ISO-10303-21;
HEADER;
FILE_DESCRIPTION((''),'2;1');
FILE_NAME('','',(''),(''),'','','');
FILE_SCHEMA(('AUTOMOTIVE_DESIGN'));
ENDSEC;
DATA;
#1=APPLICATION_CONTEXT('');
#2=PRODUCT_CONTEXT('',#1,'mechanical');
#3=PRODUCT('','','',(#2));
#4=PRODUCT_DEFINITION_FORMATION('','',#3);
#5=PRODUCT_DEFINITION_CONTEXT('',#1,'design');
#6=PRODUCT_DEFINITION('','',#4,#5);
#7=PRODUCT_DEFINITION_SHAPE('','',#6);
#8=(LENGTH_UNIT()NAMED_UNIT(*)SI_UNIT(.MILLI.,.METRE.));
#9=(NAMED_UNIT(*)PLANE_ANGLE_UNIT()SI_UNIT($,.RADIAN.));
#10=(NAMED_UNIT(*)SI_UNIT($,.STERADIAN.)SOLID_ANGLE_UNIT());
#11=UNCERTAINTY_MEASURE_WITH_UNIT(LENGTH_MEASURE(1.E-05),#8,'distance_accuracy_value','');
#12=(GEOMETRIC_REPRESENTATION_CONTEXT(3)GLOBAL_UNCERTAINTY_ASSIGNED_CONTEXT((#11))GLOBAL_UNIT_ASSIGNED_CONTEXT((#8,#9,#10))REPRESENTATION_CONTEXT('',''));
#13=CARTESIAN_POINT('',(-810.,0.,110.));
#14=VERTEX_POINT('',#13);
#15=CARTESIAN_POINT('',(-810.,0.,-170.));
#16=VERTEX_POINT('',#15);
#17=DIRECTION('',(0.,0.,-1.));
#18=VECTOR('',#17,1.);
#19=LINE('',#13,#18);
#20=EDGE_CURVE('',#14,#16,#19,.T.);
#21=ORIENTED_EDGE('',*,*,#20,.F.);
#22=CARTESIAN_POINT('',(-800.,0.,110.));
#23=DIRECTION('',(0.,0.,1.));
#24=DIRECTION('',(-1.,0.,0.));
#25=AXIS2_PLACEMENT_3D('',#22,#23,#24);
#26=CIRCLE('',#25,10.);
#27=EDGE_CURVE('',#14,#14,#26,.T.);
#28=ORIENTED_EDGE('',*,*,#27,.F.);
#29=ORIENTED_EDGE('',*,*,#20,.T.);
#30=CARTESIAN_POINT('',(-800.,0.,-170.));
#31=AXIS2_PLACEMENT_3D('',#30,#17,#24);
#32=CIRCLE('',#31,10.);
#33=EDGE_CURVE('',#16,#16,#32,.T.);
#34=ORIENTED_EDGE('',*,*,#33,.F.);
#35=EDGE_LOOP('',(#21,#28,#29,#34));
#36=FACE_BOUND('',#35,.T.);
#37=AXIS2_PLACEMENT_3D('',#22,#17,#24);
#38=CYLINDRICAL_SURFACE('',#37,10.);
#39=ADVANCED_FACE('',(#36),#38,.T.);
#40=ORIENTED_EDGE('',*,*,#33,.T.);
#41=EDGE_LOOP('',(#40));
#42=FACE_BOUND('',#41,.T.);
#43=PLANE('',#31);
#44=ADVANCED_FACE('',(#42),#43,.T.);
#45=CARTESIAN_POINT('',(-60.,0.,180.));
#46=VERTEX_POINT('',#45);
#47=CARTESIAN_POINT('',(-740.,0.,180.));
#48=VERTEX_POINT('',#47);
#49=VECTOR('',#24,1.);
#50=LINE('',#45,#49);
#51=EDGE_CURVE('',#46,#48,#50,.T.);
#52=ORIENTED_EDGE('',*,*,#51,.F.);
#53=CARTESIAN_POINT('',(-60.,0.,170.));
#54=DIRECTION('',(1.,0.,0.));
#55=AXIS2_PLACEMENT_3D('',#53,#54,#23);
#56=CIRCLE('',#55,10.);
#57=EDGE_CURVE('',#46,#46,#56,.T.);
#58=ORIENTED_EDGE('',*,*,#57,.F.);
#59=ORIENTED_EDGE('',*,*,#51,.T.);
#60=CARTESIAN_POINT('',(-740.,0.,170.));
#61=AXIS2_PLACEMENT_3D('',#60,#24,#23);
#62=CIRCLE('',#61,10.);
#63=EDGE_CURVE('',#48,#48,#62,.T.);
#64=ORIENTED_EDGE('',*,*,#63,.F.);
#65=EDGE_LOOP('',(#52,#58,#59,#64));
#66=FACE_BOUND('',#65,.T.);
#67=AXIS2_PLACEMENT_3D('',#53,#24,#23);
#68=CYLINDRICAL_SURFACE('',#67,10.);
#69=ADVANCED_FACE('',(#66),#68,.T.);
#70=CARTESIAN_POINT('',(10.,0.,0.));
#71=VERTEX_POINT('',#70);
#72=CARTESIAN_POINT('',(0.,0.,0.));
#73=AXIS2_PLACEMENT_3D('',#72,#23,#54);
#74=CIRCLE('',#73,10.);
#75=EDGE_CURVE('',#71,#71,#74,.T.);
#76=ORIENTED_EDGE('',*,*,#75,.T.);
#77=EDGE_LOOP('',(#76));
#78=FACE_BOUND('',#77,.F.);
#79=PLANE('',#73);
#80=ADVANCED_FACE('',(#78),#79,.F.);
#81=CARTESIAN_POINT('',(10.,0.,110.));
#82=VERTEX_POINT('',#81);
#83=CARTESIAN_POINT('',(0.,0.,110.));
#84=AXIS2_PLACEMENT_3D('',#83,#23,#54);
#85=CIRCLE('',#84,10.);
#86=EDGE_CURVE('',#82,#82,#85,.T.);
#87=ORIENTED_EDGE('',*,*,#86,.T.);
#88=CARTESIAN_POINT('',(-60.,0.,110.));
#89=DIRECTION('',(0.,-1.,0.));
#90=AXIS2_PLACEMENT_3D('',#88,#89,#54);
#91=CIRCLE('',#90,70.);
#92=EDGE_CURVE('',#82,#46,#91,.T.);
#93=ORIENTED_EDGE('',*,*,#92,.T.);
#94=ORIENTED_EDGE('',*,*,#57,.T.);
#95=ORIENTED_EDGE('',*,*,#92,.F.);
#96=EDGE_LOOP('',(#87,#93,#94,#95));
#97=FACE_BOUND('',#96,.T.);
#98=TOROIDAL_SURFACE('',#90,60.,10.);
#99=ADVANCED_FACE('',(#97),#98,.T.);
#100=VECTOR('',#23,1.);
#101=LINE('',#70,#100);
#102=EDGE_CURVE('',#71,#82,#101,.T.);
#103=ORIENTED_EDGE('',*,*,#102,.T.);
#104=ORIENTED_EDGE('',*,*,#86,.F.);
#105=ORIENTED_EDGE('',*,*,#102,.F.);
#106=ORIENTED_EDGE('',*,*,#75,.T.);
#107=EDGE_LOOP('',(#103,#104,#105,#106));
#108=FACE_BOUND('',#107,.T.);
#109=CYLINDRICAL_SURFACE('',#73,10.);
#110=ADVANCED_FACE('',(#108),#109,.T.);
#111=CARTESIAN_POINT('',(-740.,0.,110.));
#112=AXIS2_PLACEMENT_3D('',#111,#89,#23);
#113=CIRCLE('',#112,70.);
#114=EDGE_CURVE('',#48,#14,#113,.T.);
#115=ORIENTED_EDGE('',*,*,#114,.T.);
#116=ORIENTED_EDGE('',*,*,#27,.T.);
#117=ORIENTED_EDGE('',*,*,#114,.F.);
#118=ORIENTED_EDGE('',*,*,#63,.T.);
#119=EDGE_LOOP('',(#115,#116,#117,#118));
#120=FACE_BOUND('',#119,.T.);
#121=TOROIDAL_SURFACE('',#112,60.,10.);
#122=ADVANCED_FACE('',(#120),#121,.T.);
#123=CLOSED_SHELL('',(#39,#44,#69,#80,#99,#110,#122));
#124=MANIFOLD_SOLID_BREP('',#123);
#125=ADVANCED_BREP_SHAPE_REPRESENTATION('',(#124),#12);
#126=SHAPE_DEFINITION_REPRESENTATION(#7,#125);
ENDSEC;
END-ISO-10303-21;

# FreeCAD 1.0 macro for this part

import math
import FreeCAD as App
import Part
import Sketcher
Q = App.Units.Quantity

doc = App.newDocument("Part")
body = doc.addObject("PartDesign::Body", "Body")

# Sketch on XY plane
sketch1 = doc.addObject("Sketcher::SketchObject", "Sketch")
body.addObject(sketch1)
sketch1.AttachmentSupport = (doc.XY_Plane, [""])
sketch1.MapMode = "FlatFace"
sketch1.addGeometry(Part.Circle(App.Vector(0, 0, 0), App.Vector(0, 0, 1), 10), False)
sketch1.addConstraint([
    Sketcher.Constraint("Coincident", 0, 3, -1, 1),
    Sketcher.Constraint("Diameter", 0, Q("20 mm")),
])

# Sketch on XZ plane
sketch2 = doc.addObject("Sketcher::SketchObject", "Sketch001")
body.addObject(sketch2)
sketch2.AttachmentSupport = (doc.XZ_Plane, [""])
sketch2.MapMode = "FlatFace"
sketch2.addGeometry([
    Part.LineSegment(App.Vector(0, 0, 0), App.Vector(0, 110, 0)),  # 0
    Part.ArcOfCircle(Part.Circle(App.Vector(-60, 110, 0), App.Vector(0, 0, 1), 60), math.radians(0), math.radians(90)),  # 1
    Part.LineSegment(App.Vector(-60, 170, 0), App.Vector(-740, 170, 0)),  # 2
    Part.ArcOfCircle(Part.Circle(App.Vector(-740, 110, 0), App.Vector(0, 0, 1), 60), math.radians(90), math.radians(180)),  # 3
    Part.LineSegment(App.Vector(-800, 110, 0), App.Vector(-800, -170, 0)),  # 4
], False)
sketch2.addConstraint([
    Sketcher.Constraint("Tangent", 0, 2, 1, 1),
    Sketcher.Constraint("Tangent", 1, 2, 2, 1),
    Sketcher.Constraint("Tangent", 2, 2, 3, 1),
    Sketcher.Constraint("Tangent", 3, 2, 4, 1),
    Sketcher.Constraint("Vertical", 0),
    Sketcher.Constraint("Horizontal", 2),
    Sketcher.Constraint("Vertical", 4),
    Sketcher.Constraint("Coincident", 0, 1, -1, 1),
    Sketcher.Constraint("Equal", 1, 3),
    Sketcher.Constraint("Radius", 1, Q("60 mm")),
    Sketcher.Constraint("DistanceX", 2, 2, 2, 1, Q("680 mm")),
    Sketcher.Constraint("DistanceY", 0, 1, 0, 2, Q("110 mm")),
    Sketcher.Constraint("DistanceY", 4, 2, 4, 1, Q("280 mm")),
])
doc.recompute()

additivepipe = doc.addObject("PartDesign::AdditivePipe", "AdditivePipe")
body.addObject(additivepipe)
additivepipe.Profile = sketch1
additivepipe.Spine = (sketch2, ["Edge1", "Edge2", "Edge3", "Edge4", "Edge5"])

doc.recompute()
